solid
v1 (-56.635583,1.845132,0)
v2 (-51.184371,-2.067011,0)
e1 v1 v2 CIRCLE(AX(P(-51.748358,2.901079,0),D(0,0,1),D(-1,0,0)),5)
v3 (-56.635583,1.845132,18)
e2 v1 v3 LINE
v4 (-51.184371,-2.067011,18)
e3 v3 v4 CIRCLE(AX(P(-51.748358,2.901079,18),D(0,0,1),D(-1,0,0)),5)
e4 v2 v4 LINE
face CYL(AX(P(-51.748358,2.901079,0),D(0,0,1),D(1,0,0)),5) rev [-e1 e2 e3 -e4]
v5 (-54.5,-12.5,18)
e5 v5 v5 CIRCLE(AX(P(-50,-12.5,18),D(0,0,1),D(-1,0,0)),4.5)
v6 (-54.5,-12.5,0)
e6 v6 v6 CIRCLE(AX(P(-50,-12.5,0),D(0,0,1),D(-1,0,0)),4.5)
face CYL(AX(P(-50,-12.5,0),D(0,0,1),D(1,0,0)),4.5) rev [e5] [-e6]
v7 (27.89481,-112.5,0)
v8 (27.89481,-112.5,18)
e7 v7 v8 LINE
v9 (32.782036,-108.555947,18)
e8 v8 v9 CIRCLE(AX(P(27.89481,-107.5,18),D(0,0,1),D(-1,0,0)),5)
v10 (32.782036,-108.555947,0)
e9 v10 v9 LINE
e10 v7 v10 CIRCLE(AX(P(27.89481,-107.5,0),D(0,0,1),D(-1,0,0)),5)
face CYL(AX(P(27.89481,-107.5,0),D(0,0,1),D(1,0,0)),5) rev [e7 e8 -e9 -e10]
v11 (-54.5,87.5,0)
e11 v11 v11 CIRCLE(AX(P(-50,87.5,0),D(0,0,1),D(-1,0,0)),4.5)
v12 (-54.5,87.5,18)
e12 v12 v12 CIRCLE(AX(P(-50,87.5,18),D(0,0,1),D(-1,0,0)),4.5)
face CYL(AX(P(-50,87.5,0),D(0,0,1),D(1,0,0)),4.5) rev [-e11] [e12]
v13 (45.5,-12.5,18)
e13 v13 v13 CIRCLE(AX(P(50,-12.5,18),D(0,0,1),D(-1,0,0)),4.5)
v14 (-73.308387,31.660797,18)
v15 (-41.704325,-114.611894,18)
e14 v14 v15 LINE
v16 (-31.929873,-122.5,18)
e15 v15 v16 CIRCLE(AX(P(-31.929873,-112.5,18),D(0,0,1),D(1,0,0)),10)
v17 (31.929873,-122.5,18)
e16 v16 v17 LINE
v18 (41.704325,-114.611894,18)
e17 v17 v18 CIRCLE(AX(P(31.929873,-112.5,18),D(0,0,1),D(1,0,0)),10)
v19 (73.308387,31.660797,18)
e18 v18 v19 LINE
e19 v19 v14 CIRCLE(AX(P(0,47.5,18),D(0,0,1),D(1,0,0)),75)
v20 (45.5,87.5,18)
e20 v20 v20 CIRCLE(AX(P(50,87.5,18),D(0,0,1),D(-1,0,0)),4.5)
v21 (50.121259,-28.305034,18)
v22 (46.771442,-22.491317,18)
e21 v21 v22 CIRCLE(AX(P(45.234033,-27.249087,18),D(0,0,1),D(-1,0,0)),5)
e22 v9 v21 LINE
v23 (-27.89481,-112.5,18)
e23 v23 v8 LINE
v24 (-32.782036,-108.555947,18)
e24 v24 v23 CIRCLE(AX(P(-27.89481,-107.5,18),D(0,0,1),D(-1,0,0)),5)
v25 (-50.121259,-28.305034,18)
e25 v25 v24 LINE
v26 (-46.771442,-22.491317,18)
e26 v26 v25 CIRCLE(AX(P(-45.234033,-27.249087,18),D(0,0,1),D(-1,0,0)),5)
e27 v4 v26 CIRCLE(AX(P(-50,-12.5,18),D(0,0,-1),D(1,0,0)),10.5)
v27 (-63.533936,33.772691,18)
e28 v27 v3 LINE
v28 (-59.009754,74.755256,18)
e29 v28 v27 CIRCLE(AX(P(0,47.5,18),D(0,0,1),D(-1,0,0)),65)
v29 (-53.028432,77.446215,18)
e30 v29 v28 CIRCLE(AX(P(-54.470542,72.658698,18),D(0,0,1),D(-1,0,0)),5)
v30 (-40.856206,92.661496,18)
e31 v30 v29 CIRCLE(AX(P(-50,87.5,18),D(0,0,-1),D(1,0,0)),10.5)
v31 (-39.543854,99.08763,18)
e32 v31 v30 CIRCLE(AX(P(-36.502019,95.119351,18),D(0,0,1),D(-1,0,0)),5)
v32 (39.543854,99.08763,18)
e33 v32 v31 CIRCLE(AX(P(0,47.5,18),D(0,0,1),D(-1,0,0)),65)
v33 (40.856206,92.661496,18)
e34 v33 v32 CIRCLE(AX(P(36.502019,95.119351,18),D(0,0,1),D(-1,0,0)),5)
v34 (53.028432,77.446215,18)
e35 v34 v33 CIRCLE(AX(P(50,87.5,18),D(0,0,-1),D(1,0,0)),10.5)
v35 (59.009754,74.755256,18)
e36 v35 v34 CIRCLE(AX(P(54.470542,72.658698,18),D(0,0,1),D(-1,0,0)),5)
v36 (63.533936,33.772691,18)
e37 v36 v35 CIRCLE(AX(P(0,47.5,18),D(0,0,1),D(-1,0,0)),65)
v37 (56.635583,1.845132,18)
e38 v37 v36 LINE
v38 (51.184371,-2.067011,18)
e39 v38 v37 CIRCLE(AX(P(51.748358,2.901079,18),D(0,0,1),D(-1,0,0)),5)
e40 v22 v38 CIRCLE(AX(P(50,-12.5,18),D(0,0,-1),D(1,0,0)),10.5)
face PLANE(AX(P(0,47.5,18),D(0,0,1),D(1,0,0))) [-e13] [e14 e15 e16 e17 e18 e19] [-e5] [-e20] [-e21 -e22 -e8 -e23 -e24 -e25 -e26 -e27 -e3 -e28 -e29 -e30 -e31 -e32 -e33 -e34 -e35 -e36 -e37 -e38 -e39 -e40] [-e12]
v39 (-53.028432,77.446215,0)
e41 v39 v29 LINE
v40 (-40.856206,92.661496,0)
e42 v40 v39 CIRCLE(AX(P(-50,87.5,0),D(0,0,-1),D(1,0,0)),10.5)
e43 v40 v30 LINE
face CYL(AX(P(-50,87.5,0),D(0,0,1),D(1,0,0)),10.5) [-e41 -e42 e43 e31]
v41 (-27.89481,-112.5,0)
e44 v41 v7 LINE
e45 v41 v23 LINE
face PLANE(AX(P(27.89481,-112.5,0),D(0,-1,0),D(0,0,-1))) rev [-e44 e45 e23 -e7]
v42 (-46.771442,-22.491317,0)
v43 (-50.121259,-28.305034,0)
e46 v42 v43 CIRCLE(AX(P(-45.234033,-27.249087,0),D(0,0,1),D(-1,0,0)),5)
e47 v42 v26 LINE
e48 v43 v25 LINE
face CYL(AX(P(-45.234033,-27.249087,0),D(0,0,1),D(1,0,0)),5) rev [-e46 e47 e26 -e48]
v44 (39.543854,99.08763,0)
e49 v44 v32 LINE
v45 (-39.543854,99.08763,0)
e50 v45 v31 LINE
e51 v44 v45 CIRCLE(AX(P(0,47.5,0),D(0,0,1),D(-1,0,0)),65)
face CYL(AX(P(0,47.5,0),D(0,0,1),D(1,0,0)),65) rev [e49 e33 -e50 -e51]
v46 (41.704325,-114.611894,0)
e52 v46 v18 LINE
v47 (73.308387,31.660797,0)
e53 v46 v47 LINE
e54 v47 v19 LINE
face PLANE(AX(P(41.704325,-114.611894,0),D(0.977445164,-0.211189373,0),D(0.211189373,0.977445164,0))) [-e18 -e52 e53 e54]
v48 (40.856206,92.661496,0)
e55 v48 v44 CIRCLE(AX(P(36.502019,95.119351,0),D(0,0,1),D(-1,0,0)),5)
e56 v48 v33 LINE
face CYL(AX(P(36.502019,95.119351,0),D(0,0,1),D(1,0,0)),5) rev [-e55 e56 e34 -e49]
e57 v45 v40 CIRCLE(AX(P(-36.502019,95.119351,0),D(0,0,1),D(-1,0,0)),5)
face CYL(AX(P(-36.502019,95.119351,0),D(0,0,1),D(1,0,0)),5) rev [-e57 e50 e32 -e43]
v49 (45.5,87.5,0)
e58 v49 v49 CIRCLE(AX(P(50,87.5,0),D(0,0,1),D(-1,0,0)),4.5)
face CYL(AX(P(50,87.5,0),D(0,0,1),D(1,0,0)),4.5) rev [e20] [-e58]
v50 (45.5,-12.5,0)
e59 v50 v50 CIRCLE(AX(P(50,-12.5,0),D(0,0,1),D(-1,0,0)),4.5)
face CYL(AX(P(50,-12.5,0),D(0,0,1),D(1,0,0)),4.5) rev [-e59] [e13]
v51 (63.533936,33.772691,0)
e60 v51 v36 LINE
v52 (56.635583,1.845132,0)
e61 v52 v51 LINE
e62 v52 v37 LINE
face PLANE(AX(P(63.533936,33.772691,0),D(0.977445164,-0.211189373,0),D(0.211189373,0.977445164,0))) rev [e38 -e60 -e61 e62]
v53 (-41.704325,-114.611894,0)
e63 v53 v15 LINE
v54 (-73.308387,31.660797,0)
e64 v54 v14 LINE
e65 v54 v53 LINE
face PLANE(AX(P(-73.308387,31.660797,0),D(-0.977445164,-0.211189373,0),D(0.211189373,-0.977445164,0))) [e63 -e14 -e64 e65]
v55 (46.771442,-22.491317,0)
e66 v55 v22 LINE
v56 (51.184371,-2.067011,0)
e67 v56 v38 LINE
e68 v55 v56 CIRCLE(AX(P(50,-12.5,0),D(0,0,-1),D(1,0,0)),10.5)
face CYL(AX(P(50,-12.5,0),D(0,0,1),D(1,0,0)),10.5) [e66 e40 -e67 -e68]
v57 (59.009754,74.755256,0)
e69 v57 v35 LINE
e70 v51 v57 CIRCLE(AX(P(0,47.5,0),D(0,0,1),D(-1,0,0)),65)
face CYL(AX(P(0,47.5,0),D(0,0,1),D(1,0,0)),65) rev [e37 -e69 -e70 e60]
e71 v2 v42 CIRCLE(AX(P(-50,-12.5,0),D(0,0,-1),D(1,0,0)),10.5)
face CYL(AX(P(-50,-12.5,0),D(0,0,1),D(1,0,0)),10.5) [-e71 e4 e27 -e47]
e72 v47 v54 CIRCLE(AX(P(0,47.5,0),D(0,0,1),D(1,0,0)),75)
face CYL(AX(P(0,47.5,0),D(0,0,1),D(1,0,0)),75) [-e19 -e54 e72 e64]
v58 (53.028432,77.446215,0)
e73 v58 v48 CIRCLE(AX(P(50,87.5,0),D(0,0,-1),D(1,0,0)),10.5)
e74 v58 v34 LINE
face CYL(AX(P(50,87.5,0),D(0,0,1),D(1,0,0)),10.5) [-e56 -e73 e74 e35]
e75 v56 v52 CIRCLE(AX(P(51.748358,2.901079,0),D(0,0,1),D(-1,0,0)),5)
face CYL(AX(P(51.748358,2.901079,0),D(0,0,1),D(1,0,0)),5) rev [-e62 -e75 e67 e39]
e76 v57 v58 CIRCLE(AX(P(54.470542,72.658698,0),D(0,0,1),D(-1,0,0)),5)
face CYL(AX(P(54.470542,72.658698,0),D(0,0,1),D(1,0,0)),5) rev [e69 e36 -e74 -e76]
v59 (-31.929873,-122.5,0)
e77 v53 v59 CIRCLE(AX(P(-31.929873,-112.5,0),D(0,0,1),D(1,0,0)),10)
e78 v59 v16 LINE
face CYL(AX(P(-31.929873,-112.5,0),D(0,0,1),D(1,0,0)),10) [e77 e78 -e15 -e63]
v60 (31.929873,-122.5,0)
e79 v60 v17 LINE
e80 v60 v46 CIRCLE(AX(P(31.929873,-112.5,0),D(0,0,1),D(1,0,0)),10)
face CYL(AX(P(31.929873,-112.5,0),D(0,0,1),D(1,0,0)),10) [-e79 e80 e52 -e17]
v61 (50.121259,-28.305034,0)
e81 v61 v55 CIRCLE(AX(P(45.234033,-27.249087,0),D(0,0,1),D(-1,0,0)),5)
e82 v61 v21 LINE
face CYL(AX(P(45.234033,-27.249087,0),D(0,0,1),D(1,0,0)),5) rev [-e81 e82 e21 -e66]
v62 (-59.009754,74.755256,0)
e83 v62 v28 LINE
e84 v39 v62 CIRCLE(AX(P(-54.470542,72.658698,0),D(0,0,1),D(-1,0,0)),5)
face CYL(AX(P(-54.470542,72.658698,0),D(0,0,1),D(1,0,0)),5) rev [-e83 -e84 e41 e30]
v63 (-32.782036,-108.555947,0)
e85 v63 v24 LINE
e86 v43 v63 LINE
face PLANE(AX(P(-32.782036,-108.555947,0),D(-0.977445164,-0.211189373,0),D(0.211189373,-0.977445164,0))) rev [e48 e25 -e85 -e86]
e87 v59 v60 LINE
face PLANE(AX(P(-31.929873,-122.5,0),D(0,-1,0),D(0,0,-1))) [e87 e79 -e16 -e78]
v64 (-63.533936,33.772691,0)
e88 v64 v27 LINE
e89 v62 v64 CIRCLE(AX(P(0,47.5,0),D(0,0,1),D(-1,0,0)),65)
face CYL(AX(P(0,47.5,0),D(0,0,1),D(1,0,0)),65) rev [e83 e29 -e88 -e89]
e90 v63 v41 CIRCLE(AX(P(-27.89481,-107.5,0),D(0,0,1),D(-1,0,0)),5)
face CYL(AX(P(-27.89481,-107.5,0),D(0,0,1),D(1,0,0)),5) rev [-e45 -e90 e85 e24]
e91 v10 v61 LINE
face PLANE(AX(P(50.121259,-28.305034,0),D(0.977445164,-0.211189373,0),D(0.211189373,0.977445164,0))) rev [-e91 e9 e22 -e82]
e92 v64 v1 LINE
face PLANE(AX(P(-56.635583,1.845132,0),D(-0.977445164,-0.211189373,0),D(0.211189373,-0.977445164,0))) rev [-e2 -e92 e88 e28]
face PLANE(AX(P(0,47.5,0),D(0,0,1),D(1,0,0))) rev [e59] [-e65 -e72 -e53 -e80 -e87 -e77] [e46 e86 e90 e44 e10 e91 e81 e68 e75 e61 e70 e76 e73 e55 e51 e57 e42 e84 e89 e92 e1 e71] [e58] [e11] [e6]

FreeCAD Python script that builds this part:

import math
import FreeCAD as App
import Part
import Sketcher

doc = App.newDocument("Part")
params = doc.addObject("Spreadsheet::Sheet", "Params")
for row, (alias, value) in enumerate([
    ("sketch1_diameter", "9 mm"),
    ("sketch1_radius", "10 mm"),
    ("sketch1_radius2", "75 mm"),
    ("sketch1_radius3", "65 mm"),
    ("sketch1_radius4", "5 mm"),
    ("pad1_length", "18 mm"),
], start=1):
    params.set(f"A{row}", alias)
    params.set(f"B{row}", "=" + value)
    params.setAlias(f"B{row}", alias)

body = doc.addObject("PartDesign::Body", "Body")

sketch1 = doc.addObject("Sketcher::SketchObject", "Sketch")
body.addObject(sketch1)
sketch1.AttachmentSupport = (doc.XY_Plane, [""])
sketch1.MapMode = "FlatFace"
sketch1.AttachmentOffset = App.Placement(App.Vector(0, 0, 18), App.Rotation())
sketch1.addGeometry([
    Part.LineSegment(App.Vector(-73.3, 31.7, 0), App.Vector(-41.7, -114.6, 0)),
    Part.ArcOfCircle(Part.Circle(App.Vector(-31.9, -112.5, 0), App.Vector(0, 0, 1), 10), math.radians(-168), math.radians(-90)),
    Part.LineSegment(App.Vector(-31.9, -122.5, 0), App.Vector(31.9, -122.5, 0)),
    Part.ArcOfCircle(Part.Circle(App.Vector(31.9, -112.5, 0), App.Vector(0, 0, 1), 10), math.radians(-90), math.radians(-12)),
    Part.LineSegment(App.Vector(41.7, -114.6, 0), App.Vector(73.3, 31.7, 0)),
    Part.ArcOfCircle(Part.Circle(App.Vector(0, 47.5, 0), App.Vector(0, 0, 1), 75), math.radians(-12), math.radians(192)),
    Part.Circle(App.Vector(-50, -12.5, 0), App.Vector(0, 0, 1), 4.5),
    Part.Circle(App.Vector(50, -12.5, 0), App.Vector(0, 0, 1), 4.5),
    Part.Circle(App.Vector(-50, 87.5, 0), App.Vector(0, 0, 1), 4.5),
    Part.ArcOfCircle(Part.Circle(App.Vector(0, 47.5, 0), App.Vector(0, 0, 1), 65), math.radians(-12), math.radians(25)),
    Part.LineSegment(App.Vector(63.5, 33.8, 0), App.Vector(56.6, 1.8, 0)),
    Part.ArcOfCircle(Part.Circle(App.Vector(51.7, 2.9, 0), App.Vector(0, 0, 1), 5), math.radians(-96), math.radians(-12)),
    Part.ArcOfCircle(Part.Circle(App.Vector(50, -12.5, 0), App.Vector(0, 0, 1), 10.5), math.radians(84), math.radians(252)),
    Part.ArcOfCircle(Part.Circle(App.Vector(45.2, -27.2, 0), App.Vector(0, 0, 1), 5), math.radians(-12), math.radians(72)),
    Part.LineSegment(App.Vector(50.1, -28.3, 0), App.Vector(32.8, -108.6, 0)),
    Part.ArcOfCircle(Part.Circle(App.Vector(27.9, -107.5, 0), App.Vector(0, 0, 1), 5), math.radians(-90), math.radians(-12)),
    Part.LineSegment(App.Vector(27.9, -112.5, 0), App.Vector(-27.9, -112.5, 0)),
    Part.ArcOfCircle(Part.Circle(App.Vector(-27.9, -107.5, 0), App.Vector(0, 0, 1), 5), math.radians(-168), math.radians(-90)),
    Part.LineSegment(App.Vector(-32.8, -108.6, 0), App.Vector(-50.1, -28.3, 0)),
    Part.ArcOfCircle(Part.Circle(App.Vector(-45.2, -27.2, 0), App.Vector(0, 0, 1), 5), math.radians(108), math.radians(192)),
    Part.ArcOfCircle(Part.Circle(App.Vector(-50, -12.5, 0), App.Vector(0, 0, 1), 10.5), math.radians(-72), math.radians(96)),
    Part.ArcOfCircle(Part.Circle(App.Vector(-51.7, 2.9, 0), App.Vector(0, 0, 1), 5), math.radians(-168), math.radians(-84)),
    Part.LineSegment(App.Vector(-56.6, 1.8, 0), App.Vector(-63.5, 33.8, 0)),
    Part.ArcOfCircle(Part.Circle(App.Vector(0, 47.5, 0), App.Vector(0, 0, 1), 65), math.radians(155), math.radians(192)),
    Part.ArcOfCircle(Part.Circle(App.Vector(-54.5, 72.7, 0), App.Vector(0, 0, 1), 5), math.radians(73), math.radians(155)),
    Part.ArcOfCircle(Part.Circle(App.Vector(-50, 87.5, 0), App.Vector(0, 0, 1), 10.5), math.radians(-107), math.radians(29)),
    Part.ArcOfCircle(Part.Circle(App.Vector(-36.5, 95.1, 0), App.Vector(0, 0, 1), 5), math.radians(127), math.radians(209)),
    Part.ArcOfCircle(Part.Circle(App.Vector(0, 47.5, 0), App.Vector(0, 0, 1), 65), math.radians(53), math.radians(127)),
    Part.ArcOfCircle(Part.Circle(App.Vector(36.5, 95.1, 0), App.Vector(0, 0, 1), 5), math.radians(-29), math.radians(53)),
    Part.ArcOfCircle(Part.Circle(App.Vector(50, 87.5, 0), App.Vector(0, 0, 1), 10.5), math.radians(151), math.radians(287)),
    Part.ArcOfCircle(Part.Circle(App.Vector(54.5, 72.7, 0), App.Vector(0, 0, 1), 5), math.radians(25), math.radians(107)),
    Part.Circle(App.Vector(50, 87.5, 0), App.Vector(0, 0, 1), 4.5),
], False)
sketch1.addConstraint([
    Sketcher.Constraint("Tangent", 0, 2, 1, 1),
    Sketcher.Constraint("Tangent", 1, 2, 2, 1),
    Sketcher.Constraint("Tangent", 2, 2, 3, 1),
    Sketcher.Constraint("Tangent", 3, 2, 4, 1),
    Sketcher.Constraint("Tangent", 4, 2, 5, 1),
    Sketcher.Constraint("Tangent", 5, 2, 0, 1),
    Sketcher.Constraint("Tangent", 9, 1, 10, 1),
    Sketcher.Constraint("Tangent", 10, 2, 11, 2),
    Sketcher.Constraint("Tangent", 11, 1, 12, 1),
    Sketcher.Constraint("Tangent", 12, 2, 13, 2),
    Sketcher.Constraint("Tangent", 13, 1, 14, 1),
    Sketcher.Constraint("Tangent", 14, 2, 15, 2),
    Sketcher.Constraint("Tangent", 15, 1, 16, 1),
    Sketcher.Constraint("Tangent", 16, 2, 17, 2),
    Sketcher.Constraint("Tangent", 17, 1, 18, 1),
    Sketcher.Constraint("Tangent", 18, 2, 19, 2),
    Sketcher.Constraint("Tangent", 19, 1, 20, 1),
    Sketcher.Constraint("Tangent", 20, 2, 21, 2),
    Sketcher.Constraint("Tangent", 21, 1, 22, 1),
    Sketcher.Constraint("Tangent", 22, 2, 23, 2),
    Sketcher.Constraint("Tangent", 23, 1, 24, 2),
    Sketcher.Constraint("Tangent", 24, 1, 25, 1),
    Sketcher.Constraint("Tangent", 25, 2, 26, 2),
    Sketcher.Constraint("Tangent", 26, 1, 27, 2),
    Sketcher.Constraint("Tangent", 27, 1, 28, 2),
    Sketcher.Constraint("Tangent", 28, 1, 29, 1),
    Sketcher.Constraint("Tangent", 29, 2, 30, 2),
    Sketcher.Constraint("Tangent", 30, 1, 9, 2),
    Sketcher.Constraint("Horizontal", 2),
    Sketcher.Constraint("Horizontal", 16),
    Sketcher.Constraint("Coincident", 9, 3, 5, 3),
    Sketcher.Constraint("Coincident", 12, 3, 7, 3),
    Sketcher.Constraint("Coincident", 20, 3, 6, 3),
    Sketcher.Constraint("Coincident", 23, 3, 5, 3),
    Sketcher.Constraint("Coincident", 25, 3, 8, 3),
    Sketcher.Constraint("Coincident", 27, 3, 5, 3),
    Sketcher.Constraint("Coincident", 31, 3, 29, 3),
    Sketcher.Constraint("Equal", 1, 3),
    Sketcher.Constraint("Equal", 6, 7),
    Sketcher.Constraint("Equal", 7, 8),
    Sketcher.Constraint("Equal", 11, 13),
    Sketcher.Constraint("Equal", 13, 15),
    Sketcher.Constraint("Equal", 15, 17),
    Sketcher.Constraint("Equal", 17, 19),
    Sketcher.Constraint("Equal", 12, 20),
    Sketcher.Constraint("Equal", 19, 21),
    Sketcher.Constraint("Equal", 9, 23),
    Sketcher.Constraint("Equal", 21, 24),
    Sketcher.Constraint("Equal", 20, 25),
    Sketcher.Constraint("Equal", 24, 26),
    Sketcher.Constraint("Equal", 23, 27),
    Sketcher.Constraint("Equal", 26, 28),
    Sketcher.Constraint("Equal", 25, 29),
    Sketcher.Constraint("Equal", 28, 30),
    Sketcher.Constraint("Equal", 8, 31),
    Sketcher.Constraint("Symmetric", 6, 3, 7, 3, -2),
    Sketcher.Constraint("Symmetric", 26, 3, 28, 3, -2),
    Sketcher.Constraint("Symmetric", 14, 2, 17, 1, -2),
    Sketcher.Constraint("Parallel", 4, 10),
    Sketcher.Constraint("Parallel", 10, 14),
    Sketcher.Constraint("Parallel", 0, 18),
    Sketcher.Constraint("Parallel", 18, 22),
    Sketcher.Constraint("Horizontal", 25, 3, 29, 3),
    Sketcher.Constraint("Horizontal", 3, 3, 15, 1),
    Sketcher.Constraint("Vertical", 6, 3, 8, 3),
    Sketcher.Constraint("Diameter", 6, 9.0),
    Sketcher.Constraint("Radius", 1, 10.0),
    Sketcher.Constraint("Radius", 5, 75.0),
    Sketcher.Constraint("Radius", 9, 65.0),
    Sketcher.Constraint("Radius", 11, 5.0),
    Sketcher.Constraint("Radius", 12, 10.5),
    Sketcher.Constraint("DistanceX", 6, 3, -1, 1, 50.0),
    Sketcher.Constraint("DistanceY", 1, 3, 5, 3, 160.0),
    Sketcher.Constraint("DistanceY", 6, 3, 5, 3, 60.0),
    Sketcher.Constraint("DistanceY", 5, 3, 8, 3, 40.0),
    Sketcher.Constraint("DistanceY", 1, 3, -1, 1, 112.5),
    Sketcher.Constraint("DistanceX", 16, 2, 16, 1, 55.78962),
    Sketcher.Constraint("DistanceX", 0, 2, 3, 3, 73.634198),
])
sketch1.setExpression("Constraints[65]", "Params.sketch1_diameter")
sketch1.setExpression("Constraints[66]", "Params.sketch1_radius")
sketch1.setExpression("Constraints[67]", "Params.sketch1_radius2")
sketch1.setExpression("Constraints[68]", "Params.sketch1_radius3")
sketch1.setExpression("Constraints[69]", "Params.sketch1_radius4")
pad1 = doc.addObject("PartDesign::Pad", "Pad")
body.addObject(pad1)
pad1.Profile = sketch1
pad1.setExpression("Length", "Params.pad1_length")
pad1.Reversed = True

doc.recompute()
